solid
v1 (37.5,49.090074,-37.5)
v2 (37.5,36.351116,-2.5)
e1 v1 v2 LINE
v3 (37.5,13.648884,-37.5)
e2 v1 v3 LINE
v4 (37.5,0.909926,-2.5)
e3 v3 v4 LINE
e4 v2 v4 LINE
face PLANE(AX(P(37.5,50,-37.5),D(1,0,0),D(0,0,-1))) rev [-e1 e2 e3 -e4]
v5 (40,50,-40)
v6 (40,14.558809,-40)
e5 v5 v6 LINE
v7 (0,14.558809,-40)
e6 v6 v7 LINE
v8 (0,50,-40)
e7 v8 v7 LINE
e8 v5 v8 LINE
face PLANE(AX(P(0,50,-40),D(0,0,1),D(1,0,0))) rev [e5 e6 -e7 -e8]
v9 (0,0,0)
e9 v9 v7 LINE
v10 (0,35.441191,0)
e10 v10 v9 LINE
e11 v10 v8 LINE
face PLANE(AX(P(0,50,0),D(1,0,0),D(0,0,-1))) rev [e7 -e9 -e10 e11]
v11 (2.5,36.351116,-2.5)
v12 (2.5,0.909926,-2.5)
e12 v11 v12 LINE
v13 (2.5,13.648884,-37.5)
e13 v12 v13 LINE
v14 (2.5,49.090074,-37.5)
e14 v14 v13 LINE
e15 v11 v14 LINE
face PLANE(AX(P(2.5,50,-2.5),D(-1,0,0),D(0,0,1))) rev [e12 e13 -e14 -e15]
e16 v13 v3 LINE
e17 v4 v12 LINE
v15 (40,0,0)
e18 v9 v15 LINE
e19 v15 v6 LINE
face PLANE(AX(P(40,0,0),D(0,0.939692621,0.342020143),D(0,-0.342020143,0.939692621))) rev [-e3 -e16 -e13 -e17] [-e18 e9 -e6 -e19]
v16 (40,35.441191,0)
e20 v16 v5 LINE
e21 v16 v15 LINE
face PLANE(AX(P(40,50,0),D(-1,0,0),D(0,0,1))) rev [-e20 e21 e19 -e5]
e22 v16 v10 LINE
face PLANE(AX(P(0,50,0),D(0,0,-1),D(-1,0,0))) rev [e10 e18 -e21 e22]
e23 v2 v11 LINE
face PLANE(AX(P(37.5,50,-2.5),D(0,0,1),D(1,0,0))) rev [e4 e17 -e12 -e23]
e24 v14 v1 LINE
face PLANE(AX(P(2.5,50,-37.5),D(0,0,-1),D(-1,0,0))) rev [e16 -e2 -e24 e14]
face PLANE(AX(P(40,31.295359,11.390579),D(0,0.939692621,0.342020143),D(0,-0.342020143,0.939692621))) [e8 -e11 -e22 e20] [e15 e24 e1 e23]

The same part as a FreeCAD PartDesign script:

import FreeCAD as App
import Part
import Sketcher
from FreeCAD import Vector
Q = App.Units.Quantity


def add_polygon(sketch, points):
    """Adds a closed chain of lines whose ends are joined by coincident constraints."""
    first, n = sketch.GeometryCount, len(points)
    for a, b in zip(points, points[1:] + points[:1]):
        sketch.addGeometry(Part.LineSegment(App.Vector(*a, 0), App.Vector(*b, 0)), False)
    for i in range(n):
        sketch.addConstraint(Sketcher.Constraint("Coincident", first + i, 2, first + (i + 1) % n, 1))

doc = App.newDocument("Part")
body = doc.addObject("PartDesign::Body", "Body")

sketch1 = body.newObject("Sketcher::SketchObject", "Sketch")
sketch1.AttachmentSupport = (doc.getObject("XZ_Plane"), [""])
sketch1.MapMode = "FlatFace"
add_polygon(sketch1, [(0, -40), (0, 0), (40, 0), (40, -40)])
sketch1.addConstraint(Sketcher.Constraint("Vertical", 0))
sketch1.addConstraint(Sketcher.Constraint("Horizontal", 1))
sketch1.addConstraint(Sketcher.Constraint("Vertical", 2))
sketch1.addConstraint(Sketcher.Constraint("Horizontal", 3))
sketch1.addConstraint(Sketcher.Constraint("Coincident", 0, 2, -1, 1))
sketch1.addConstraint(Sketcher.Constraint("Equal", 3, 0))
sketch1.addConstraint(Sketcher.Constraint("DistanceX", 1, 1, 1, 2, Q("40 mm")))
pad1 = body.newObject("PartDesign::Pad", "Pad")
pad1.Profile = sketch1
pad1.Length = 50
pad1.Reversed = True

sketch2 = body.newObject("Sketcher::SketchObject", "Sketch001")
sketch2.AttachmentSupport = (doc.getObject("XZ_Plane"), [""])
sketch2.MapMode = "FlatFace"
add_polygon(sketch2, [(2, -2), (2, -38), (38, -38), (38, -2)])
sketch2.addConstraint(Sketcher.Constraint("Vertical", 0))
sketch2.addConstraint(Sketcher.Constraint("Horizontal", 1))
sketch2.addConstraint(Sketcher.Constraint("Vertical", 2))
sketch2.addConstraint(Sketcher.Constraint("Horizontal", 3))
sketch2.addConstraint(Sketcher.Constraint("Equal", 3, 0))
sketch2.addConstraint(Sketcher.Constraint("DistanceX", 1, 1, 1, 2, Q("35 mm")))
sketch2.addConstraint(Sketcher.Constraint("DistanceX", -1, 1, 0, 2, Q("2.5 mm")))
sketch2.addConstraint(Sketcher.Constraint("DistanceY", 0, 2, -1, 1, Q("37.5 mm")))
pocket1 = body.newObject("PartDesign::Pocket", "Pocket")
pocket1.Profile = sketch2
pocket1.Type = "ThroughAll"

sketch3 = body.newObject("Sketcher::SketchObject", "Sketch002")
sketch3.AttachmentSupport = (doc.getObject("YZ_Plane"), [""])
sketch3.MapMode = "FlatFace"
add_polygon(sketch3, [(0, -40), (0, 0), (15, -40)])
add_polygon(sketch3, [(50, -40), (35, 0), (50, 0)])
sketch3.addConstraint(Sketcher.Constraint("Vertical", 0))
sketch3.addConstraint(Sketcher.Constraint("Horizontal", 2))
sketch3.addConstraint(Sketcher.Constraint("Horizontal", 4))
sketch3.addConstraint(Sketcher.Constraint("Vertical", 5))
sketch3.addConstraint(Sketcher.Constraint("Coincident", 0, 2, -1, 1))
sketch3.addConstraint(Sketcher.Constraint("PointOnObject", 3, 2, -1))
sketch3.addConstraint(Sketcher.Constraint("Parallel", 1, 3))
sketch3.addConstraint(Sketcher.Constraint("Horizontal", 2, 2, 5, 2))
sketch3.addConstraint(Sketcher.Constraint("DistanceY", 0, 1, 0, 2, Q("40 mm")))
sketch3.addConstraint(Sketcher.Constraint("Angle", 1, Q("-70 deg")))
sketch3.addConstraint(Sketcher.Constraint("DistanceX", -1, 1, 4, 2, Q("50 mm")))
pocket2 = body.newObject("PartDesign::Pocket", "Pocket001")
pocket2.Profile = sketch3
pocket2.Type = "ThroughAll"
pocket2.Reversed = True

doc.recompute()
